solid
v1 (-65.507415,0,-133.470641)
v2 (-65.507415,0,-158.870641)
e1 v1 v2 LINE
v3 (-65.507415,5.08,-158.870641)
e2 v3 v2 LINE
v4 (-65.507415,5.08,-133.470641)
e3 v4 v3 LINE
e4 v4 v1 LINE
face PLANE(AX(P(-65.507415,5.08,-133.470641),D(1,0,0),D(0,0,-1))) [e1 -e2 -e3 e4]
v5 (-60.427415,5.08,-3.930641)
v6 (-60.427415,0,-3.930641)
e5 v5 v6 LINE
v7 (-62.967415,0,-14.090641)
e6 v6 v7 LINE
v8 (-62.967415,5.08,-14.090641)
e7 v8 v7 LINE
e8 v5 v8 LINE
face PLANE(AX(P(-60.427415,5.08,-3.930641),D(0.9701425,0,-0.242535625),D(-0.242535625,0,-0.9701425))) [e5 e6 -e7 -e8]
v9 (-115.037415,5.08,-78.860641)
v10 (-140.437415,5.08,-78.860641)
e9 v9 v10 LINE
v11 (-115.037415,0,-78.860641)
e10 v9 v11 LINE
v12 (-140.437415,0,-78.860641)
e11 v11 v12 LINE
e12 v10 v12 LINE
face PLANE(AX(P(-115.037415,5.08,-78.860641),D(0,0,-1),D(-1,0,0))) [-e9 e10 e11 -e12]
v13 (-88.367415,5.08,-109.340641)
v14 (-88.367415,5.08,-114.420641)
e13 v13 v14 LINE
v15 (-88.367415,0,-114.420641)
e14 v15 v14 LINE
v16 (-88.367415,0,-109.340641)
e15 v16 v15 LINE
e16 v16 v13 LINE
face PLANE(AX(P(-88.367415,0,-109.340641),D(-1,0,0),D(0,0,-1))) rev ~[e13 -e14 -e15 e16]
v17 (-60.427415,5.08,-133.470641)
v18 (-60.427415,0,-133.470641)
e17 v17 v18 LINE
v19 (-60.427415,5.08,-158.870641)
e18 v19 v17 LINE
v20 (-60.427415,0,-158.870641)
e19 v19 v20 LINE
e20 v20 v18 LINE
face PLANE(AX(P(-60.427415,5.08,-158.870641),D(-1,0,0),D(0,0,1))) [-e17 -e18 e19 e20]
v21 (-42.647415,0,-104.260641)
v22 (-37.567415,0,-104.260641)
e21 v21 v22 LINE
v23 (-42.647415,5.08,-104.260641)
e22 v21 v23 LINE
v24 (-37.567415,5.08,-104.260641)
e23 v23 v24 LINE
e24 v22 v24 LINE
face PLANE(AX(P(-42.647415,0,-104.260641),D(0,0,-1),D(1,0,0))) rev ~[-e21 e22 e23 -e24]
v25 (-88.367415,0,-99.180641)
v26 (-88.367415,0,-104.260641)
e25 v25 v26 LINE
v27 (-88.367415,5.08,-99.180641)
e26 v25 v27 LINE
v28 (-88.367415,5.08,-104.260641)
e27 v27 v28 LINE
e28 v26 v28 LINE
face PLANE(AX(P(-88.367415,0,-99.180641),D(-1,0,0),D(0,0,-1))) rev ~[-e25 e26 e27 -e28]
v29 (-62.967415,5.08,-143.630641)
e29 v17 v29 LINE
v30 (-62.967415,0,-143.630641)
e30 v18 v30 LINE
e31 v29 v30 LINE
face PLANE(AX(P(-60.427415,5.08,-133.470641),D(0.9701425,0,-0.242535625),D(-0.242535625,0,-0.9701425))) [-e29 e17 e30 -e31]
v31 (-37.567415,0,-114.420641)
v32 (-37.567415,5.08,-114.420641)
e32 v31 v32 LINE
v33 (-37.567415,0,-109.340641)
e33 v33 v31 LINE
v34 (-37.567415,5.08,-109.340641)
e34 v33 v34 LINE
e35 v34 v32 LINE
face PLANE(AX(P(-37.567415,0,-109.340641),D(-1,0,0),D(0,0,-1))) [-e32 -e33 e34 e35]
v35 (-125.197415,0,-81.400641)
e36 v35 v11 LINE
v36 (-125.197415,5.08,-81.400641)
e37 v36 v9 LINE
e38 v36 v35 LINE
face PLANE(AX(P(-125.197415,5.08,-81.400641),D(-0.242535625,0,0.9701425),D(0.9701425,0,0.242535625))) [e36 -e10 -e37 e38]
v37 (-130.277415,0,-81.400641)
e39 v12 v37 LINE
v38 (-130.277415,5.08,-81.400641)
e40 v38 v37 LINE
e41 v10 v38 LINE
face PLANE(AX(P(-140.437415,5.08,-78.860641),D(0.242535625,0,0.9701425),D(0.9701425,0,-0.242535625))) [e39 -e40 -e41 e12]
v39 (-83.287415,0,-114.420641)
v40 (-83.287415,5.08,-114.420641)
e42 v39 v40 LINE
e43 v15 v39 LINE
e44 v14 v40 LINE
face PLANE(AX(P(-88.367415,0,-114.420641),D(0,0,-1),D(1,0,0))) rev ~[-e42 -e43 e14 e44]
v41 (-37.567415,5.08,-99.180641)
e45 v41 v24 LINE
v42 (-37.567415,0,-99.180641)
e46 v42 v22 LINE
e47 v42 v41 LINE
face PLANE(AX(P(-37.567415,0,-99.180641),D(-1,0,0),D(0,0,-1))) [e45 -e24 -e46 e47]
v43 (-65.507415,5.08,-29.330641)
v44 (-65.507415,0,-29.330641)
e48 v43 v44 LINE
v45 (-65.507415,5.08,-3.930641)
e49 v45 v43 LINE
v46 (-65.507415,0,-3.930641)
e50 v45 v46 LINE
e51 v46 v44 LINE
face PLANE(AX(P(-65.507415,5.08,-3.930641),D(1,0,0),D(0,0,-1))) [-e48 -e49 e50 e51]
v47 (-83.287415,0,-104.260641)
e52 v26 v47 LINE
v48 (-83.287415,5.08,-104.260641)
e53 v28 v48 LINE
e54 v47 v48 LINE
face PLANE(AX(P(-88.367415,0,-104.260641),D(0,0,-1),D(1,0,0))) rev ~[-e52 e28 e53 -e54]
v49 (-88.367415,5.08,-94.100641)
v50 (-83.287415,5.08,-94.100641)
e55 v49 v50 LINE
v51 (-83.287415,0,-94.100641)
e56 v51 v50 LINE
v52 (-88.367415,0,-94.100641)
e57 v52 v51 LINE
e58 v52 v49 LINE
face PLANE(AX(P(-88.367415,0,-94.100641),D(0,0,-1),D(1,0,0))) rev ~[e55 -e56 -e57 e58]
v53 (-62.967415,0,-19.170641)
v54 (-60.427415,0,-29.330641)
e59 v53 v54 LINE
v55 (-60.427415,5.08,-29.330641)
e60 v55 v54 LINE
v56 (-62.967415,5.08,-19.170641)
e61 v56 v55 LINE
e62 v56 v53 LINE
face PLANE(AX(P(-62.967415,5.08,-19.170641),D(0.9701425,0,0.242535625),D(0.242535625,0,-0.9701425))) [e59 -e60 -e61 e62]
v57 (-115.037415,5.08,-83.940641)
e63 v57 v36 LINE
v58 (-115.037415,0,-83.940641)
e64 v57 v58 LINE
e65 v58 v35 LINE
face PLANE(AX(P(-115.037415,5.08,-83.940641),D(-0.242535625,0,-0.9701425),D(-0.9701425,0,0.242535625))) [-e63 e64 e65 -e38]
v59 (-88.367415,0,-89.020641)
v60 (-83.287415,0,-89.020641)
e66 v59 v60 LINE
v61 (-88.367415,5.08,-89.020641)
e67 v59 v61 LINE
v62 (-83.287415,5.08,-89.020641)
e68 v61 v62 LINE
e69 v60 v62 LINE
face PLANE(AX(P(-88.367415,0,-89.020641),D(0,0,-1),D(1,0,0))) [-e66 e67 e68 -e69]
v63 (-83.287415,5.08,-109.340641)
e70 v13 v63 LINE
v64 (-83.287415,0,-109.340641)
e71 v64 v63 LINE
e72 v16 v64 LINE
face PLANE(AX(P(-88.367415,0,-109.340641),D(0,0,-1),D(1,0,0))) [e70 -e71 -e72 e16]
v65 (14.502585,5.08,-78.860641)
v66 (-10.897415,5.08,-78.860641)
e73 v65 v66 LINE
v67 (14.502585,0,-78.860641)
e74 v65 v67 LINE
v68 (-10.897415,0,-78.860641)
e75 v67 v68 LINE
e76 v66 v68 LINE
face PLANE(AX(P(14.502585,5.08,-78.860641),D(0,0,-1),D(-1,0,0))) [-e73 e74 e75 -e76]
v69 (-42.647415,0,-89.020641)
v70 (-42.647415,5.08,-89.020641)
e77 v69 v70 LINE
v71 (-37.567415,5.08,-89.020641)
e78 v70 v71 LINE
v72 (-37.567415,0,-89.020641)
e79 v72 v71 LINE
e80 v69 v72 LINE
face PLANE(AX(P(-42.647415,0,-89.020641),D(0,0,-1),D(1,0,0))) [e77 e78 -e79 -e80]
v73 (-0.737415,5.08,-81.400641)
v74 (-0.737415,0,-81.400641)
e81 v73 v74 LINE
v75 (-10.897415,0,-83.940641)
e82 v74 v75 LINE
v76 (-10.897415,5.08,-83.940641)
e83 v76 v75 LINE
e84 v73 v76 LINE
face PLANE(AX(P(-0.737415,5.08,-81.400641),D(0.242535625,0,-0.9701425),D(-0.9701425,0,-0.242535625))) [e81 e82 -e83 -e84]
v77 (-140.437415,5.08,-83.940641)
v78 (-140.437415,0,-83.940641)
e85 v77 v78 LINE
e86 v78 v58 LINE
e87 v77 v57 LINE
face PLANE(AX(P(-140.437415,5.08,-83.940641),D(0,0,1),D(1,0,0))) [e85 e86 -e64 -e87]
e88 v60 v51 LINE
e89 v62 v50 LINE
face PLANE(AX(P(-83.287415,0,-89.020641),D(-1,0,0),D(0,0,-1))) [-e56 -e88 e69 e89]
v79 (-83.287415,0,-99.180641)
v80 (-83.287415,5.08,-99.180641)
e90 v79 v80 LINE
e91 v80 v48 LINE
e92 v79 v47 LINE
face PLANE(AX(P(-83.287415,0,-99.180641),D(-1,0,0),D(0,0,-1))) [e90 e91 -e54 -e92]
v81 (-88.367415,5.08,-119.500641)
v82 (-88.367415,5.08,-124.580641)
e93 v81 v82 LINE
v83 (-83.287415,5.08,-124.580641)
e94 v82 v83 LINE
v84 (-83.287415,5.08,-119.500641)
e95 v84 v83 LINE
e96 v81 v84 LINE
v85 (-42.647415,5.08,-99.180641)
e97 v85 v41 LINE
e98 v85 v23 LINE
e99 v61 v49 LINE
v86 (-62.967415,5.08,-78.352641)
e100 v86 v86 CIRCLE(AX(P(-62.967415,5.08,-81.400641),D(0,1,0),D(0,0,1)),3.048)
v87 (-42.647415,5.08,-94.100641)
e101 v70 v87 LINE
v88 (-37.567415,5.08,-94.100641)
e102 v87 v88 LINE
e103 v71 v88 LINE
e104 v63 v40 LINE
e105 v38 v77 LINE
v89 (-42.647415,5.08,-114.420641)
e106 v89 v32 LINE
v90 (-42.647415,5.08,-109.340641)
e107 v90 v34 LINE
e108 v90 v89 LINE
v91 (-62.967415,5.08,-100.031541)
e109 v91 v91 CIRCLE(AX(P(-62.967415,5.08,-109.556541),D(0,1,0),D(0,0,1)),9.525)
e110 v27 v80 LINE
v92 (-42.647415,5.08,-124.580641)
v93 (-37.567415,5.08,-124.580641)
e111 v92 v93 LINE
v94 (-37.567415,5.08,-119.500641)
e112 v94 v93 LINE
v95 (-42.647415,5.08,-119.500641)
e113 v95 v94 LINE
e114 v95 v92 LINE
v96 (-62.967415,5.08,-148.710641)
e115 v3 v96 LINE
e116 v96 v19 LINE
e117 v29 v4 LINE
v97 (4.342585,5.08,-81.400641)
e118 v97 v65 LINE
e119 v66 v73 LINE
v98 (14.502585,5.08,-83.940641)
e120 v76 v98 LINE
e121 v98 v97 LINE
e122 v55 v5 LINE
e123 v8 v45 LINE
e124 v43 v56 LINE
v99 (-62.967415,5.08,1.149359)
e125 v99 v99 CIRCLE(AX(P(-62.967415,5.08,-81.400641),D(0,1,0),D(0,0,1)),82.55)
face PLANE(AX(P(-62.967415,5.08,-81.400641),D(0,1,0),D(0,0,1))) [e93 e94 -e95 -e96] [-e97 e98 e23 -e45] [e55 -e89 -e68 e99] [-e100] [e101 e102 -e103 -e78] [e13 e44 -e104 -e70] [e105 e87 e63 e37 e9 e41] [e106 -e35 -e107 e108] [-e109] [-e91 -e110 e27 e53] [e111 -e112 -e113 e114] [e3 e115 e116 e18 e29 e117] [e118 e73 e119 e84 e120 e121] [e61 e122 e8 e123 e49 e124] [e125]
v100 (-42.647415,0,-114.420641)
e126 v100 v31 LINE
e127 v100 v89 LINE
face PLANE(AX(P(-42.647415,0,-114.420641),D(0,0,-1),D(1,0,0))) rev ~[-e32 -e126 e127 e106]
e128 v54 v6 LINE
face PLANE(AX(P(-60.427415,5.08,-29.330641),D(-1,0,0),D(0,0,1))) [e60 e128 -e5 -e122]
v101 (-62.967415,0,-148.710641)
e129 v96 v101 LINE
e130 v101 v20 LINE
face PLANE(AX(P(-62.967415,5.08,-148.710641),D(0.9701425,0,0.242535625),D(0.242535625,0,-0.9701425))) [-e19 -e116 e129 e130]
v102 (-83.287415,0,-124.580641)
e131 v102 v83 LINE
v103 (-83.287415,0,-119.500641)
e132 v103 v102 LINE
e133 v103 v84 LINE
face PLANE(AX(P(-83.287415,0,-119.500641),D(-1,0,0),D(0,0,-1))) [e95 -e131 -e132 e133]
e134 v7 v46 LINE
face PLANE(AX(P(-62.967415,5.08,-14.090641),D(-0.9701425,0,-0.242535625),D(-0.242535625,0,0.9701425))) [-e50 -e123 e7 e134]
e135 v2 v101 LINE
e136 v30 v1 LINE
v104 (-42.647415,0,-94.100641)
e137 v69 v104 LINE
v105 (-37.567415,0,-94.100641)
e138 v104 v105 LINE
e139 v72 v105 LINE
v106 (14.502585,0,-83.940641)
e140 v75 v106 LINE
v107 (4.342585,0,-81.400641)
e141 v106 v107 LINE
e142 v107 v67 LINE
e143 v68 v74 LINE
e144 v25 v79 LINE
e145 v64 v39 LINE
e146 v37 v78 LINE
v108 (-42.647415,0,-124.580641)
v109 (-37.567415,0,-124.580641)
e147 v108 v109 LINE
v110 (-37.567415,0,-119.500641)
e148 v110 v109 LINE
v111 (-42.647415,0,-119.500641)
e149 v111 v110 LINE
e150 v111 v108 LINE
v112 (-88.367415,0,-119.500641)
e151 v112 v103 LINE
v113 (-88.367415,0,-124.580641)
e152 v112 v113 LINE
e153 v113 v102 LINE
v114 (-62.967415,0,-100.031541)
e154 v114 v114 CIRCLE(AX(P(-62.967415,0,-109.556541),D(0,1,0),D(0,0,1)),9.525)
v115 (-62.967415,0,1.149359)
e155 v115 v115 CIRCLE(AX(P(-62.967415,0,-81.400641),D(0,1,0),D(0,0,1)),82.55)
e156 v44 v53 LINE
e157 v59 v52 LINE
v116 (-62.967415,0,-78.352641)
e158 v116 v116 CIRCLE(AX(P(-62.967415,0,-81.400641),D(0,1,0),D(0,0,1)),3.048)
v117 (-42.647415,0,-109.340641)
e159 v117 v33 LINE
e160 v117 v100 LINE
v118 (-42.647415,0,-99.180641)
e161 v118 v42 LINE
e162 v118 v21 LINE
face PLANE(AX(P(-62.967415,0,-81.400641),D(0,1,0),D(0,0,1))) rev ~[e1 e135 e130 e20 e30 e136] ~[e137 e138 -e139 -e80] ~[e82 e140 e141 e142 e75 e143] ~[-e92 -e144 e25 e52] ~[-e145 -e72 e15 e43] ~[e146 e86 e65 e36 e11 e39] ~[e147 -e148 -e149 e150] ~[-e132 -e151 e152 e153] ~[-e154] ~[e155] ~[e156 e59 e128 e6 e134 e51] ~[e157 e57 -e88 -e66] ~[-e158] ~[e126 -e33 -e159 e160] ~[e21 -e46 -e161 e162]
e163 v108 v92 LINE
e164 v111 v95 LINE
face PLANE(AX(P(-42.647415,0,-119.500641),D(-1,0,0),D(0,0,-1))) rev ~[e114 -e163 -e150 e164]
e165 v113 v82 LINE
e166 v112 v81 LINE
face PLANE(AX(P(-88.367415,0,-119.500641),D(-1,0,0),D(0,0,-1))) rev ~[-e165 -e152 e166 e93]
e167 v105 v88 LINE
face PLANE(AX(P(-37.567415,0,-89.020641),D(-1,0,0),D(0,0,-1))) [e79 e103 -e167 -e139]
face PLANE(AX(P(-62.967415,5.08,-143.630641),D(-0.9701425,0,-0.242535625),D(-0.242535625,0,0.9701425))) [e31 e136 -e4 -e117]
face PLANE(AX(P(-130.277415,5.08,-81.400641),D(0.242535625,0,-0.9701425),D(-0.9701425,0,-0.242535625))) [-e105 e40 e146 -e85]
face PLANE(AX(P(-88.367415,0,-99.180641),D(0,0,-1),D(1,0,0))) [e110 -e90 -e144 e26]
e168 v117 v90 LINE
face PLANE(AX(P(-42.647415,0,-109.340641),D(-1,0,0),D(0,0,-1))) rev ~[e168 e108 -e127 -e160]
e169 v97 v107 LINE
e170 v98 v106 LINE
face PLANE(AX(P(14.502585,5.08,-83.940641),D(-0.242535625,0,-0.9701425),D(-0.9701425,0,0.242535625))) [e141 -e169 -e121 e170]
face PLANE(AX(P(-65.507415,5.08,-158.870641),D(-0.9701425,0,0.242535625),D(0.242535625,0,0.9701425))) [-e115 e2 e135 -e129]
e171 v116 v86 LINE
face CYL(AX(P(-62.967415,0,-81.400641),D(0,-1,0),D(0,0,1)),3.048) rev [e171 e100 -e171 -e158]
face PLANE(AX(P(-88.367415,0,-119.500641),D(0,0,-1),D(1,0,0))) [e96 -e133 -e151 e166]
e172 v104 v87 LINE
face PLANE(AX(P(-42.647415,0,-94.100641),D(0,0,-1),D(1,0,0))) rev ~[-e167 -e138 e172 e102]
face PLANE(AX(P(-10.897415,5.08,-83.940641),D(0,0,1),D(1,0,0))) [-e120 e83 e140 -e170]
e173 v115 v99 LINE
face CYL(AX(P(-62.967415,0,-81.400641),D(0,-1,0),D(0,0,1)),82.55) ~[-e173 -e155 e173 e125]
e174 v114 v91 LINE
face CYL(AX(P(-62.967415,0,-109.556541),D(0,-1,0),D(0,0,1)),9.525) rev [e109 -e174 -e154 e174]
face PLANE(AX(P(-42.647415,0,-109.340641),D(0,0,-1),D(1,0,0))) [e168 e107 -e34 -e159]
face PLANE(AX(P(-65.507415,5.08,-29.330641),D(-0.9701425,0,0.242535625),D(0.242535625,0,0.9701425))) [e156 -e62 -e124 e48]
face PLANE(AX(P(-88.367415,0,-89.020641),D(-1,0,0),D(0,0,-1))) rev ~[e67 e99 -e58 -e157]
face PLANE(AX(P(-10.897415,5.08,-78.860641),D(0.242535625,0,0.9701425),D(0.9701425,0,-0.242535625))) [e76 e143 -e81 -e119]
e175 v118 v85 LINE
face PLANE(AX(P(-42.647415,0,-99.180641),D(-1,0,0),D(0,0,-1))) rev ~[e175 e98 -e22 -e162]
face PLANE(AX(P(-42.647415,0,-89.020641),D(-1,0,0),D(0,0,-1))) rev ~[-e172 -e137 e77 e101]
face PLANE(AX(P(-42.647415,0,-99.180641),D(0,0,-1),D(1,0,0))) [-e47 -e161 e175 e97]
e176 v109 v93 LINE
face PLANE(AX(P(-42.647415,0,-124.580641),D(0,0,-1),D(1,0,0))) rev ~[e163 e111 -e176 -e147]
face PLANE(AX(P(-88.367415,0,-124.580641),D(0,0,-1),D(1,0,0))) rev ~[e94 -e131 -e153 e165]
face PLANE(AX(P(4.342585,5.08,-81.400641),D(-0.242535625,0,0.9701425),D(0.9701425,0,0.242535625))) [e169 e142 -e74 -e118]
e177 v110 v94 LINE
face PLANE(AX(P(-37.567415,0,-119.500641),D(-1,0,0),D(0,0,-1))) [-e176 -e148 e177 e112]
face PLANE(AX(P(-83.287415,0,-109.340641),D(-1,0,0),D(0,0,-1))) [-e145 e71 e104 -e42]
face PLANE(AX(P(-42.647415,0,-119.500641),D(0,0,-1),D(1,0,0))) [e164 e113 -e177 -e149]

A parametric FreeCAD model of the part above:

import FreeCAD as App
import Part
import Sketcher

V = App.Vector
Q = App.Units.Quantity


def add_polygon(sketch, points):
    """Adds a closed chain of lines whose ends are joined by coincident constraints."""
    first, n = sketch.GeometryCount, len(points)
    for a, b in zip(points, points[1:] + points[:1]):
        sketch.addGeometry(Part.LineSegment(App.Vector(*a, 0), App.Vector(*b, 0)), False)
    for i in range(n):
        sketch.addConstraint(Sketcher.Constraint("Coincident", first + i, 2, first + (i + 1) % n, 1))

doc = App.newDocument("Part")
body = doc.addObject("PartDesign::Body", "Body")

sketch1 = body.newObject("Sketcher::SketchObject", "Sketch")
sketch1.AttachmentSupport = (doc.getObject("XZ_Plane"), [""])
sketch1.MapMode = "FlatFace"
sketch1.addGeometry(Part.Circle(V(-62.967415, -81.400641, 0), V(0, 0, 1), 82.55), False)
add_polygon(sketch1, [(-83.287415, -119.500641), (-88.367415, -119.500641), (-88.367415, -124.580641), (-83.287415, -124.580641)])
add_polygon(sketch1, [(-83.287415, -109.340641), (-88.367415, -109.340641), (-88.367415, -114.420641), (-83.287415, -114.420641)])
add_polygon(sketch1, [(-83.287415, -99.180641), (-88.367415, -99.180641), (-88.367415, -104.260641), (-83.287415, -104.260641)])
add_polygon(sketch1, [(-83.287415, -89.020641), (-88.367415, -89.020641), (-88.367415, -94.100641), (-83.287415, -94.100641)])
sketch1.addGeometry(Part.Circle(V(-62.967415, -109.556541, 0), V(0, 0, 1), 9.525), False)
add_polygon(sketch1, [(-37.567415, -119.500641), (-42.647415, -119.500641), (-42.647415, -124.580641), (-37.567415, -124.580641)])
add_polygon(sketch1, [(-37.567415, -109.340641), (-42.647415, -109.340641), (-42.647415, -114.420641), (-37.567415, -114.420641)])
add_polygon(sketch1, [(-37.567415, -99.180641), (-42.647415, -99.180641), (-42.647415, -104.260641), (-37.567415, -104.260641)])
sketch1.addGeometry(Part.Circle(V(-62.967415, -81.400641, 0), V(0, 0, 1), 3.048), False)
add_polygon(sketch1, [(-37.567415, -89.020641), (-42.647415, -89.020641), (-42.647415, -94.100641), (-37.567415, -94.100641)])
sketch1.addConstraint([
    Sketcher.Constraint("Horizontal", 1),
    Sketcher.Constraint("Vertical", 2),
    Sketcher.Constraint("Horizontal", 3),
    Sketcher.Constraint("Vertical", 4),
    Sketcher.Constraint("Horizontal", 5),
    Sketcher.Constraint("Vertical", 6),
    Sketcher.Constraint("Horizontal", 7),
    Sketcher.Constraint("Vertical", 8),
    Sketcher.Constraint("Horizontal", 9),
    Sketcher.Constraint("Vertical", 10),
    Sketcher.Constraint("Horizontal", 11),
    Sketcher.Constraint("Vertical", 12),
    Sketcher.Constraint("Horizontal", 13),
    Sketcher.Constraint("Vertical", 14),
    Sketcher.Constraint("Horizontal", 15),
    Sketcher.Constraint("Vertical", 16),
    Sketcher.Constraint("Horizontal", 18),
    Sketcher.Constraint("Vertical", 19),
    Sketcher.Constraint("Horizontal", 20),
    Sketcher.Constraint("Vertical", 21),
    Sketcher.Constraint("Horizontal", 22),
    Sketcher.Constraint("Vertical", 23),
    Sketcher.Constraint("Horizontal", 24),
    Sketcher.Constraint("Vertical", 25),
    Sketcher.Constraint("Horizontal", 26),
    Sketcher.Constraint("Vertical", 27),
    Sketcher.Constraint("Horizontal", 28),
    Sketcher.Constraint("Vertical", 29),
    Sketcher.Constraint("Horizontal", 31),
    Sketcher.Constraint("Vertical", 32),
    Sketcher.Constraint("Horizontal", 33),
    Sketcher.Constraint("Vertical", 34),
    Sketcher.Constraint("Coincident", 30, 3, 0, 3),
    Sketcher.Constraint("Horizontal", 4, 2, 18, 2),
    Sketcher.Constraint("Horizontal", 3, 2, 19, 2),
    Sketcher.Constraint("Horizontal", 8, 2, 22, 2),
    Sketcher.Constraint("Horizontal", 7, 2, 23, 2),
    Sketcher.Constraint("Horizontal", 12, 2, 26, 2),
    Sketcher.Constraint("Horizontal", 11, 2, 27, 2),
    Sketcher.Constraint("Horizontal", 16, 2, 31, 2),
    Sketcher.Constraint("Horizontal", 15, 2, 32, 2),
    Sketcher.Constraint("Vertical", 0, 3, 17, 3),
    Sketcher.Constraint("Vertical", 2, 2, 5, 2),
    Sketcher.Constraint("Vertical", 4, 2, 7, 2),
    Sketcher.Constraint("Vertical", 6, 2, 9, 2),
    Sketcher.Constraint("Vertical", 8, 2, 11, 2),
    Sketcher.Constraint("Vertical", 10, 2, 13, 2),
    Sketcher.Constraint("Vertical", 12, 2, 15, 2),
    Sketcher.Constraint("Vertical", 19, 2, 22, 2),
    Sketcher.Constraint("Vertical", 21, 2, 24, 2),
    Sketcher.Constraint("Vertical", 23, 2, 26, 2),
    Sketcher.Constraint("Vertical", 25, 2, 28, 2),
    Sketcher.Constraint("Vertical", 27, 2, 31, 2),
    Sketcher.Constraint("Vertical", 29, 2, 33, 2),
    Sketcher.Constraint("Equal", 15, 18),
    Sketcher.Constraint("Equal", 33, 2),
    Sketcher.Constraint("Equal", 4, 6),
    Sketcher.Constraint("Equal", 8, 10),
    Sketcher.Constraint("Equal", 12, 14),
    Sketcher.Constraint("Diameter", 0, Q("6.5 in")),
    Sketcher.Constraint("Diameter", 17, Q("0.75 in")),
    Sketcher.Constraint("Diameter", 30, Q("0.24 in")),
    Sketcher.Constraint("DistanceX", 1, 2, 1, 1, Q("0.2 in")),
    Sketcher.Constraint("DistanceX", 1, 2, 17, 3, Q("1 in")),
    Sketcher.Constraint("DistanceX", 17, 3, 20, 2, Q("1 in")),
    Sketcher.Constraint("DistanceY", 1, 2, 0, 3, Q("1.5 in")),
    Sketcher.Constraint("DistanceY", 1, 2, 5, 2, Q("0.4 in")),
    Sketcher.Constraint("DistanceY", 5, 2, 9, 2, Q("0.4 in")),
    Sketcher.Constraint("DistanceY", 9, 2, 13, 2, Q("0.4 in")),
    Sketcher.Constraint("DistanceY", 17, 3, 0, 3, Q("1.1085 in")),
    Sketcher.Constraint("DistanceY", 0, 3, -1, 1, 81.400641),
    Sketcher.Constraint("DistanceX", 0, 3, -1, 1, 62.967415),
])
pad1 = body.newObject("PartDesign::Pad", "Pad")
pad1.Profile = sketch1
pad1.Length = Q("0.2 in")
pad1.Reversed = True

sketch2 = body.newObject("Sketcher::SketchObject", "Sketch001")
sketch2.AttachmentSupport = (doc.getObject("XZ_Plane"), [""])
sketch2.MapMode = "FlatFace"
sketch2.AttachmentOffset = App.Placement(V(0, 0, -0.2 * 25.4), App.Rotation())
add_polygon(sketch2, [(-60.427415, -158.870641), (-62.967415, -148.710641), (-65.507415, -158.870641), (-65.507415, -133.470641), (-62.967415, -143.630641), (-60.427415, -133.470641)])
add_polygon(sketch2, [(14.502585, -78.860641), (4.342585, -81.400641), (14.502585, -83.940641), (-10.897415, -83.940641), (-0.737415, -81.400641), (-10.897415, -78.860641)])
add_polygon(sketch2, [(-65.507415, -3.930641), (-62.967415, -14.090641), (-60.427415, -3.930641), (-60.427415, -29.330641), (-62.967415, -19.170641), (-65.507415, -29.330641)])
add_polygon(sketch2, [(-140.437415, -83.940641), (-130.277415, -81.400641), (-140.437415, -78.860641), (-115.037415, -78.860641), (-125.197415, -81.400641), (-115.037415, -83.940641)])
sketch2.addConstraint([
    Sketcher.Constraint("Vertical", 2),
    Sketcher.Constraint("Vertical", 5),
    Sketcher.Constraint("Horizontal", 8),
    Sketcher.Constraint("Horizontal", 11),
    Sketcher.Constraint("Vertical", 14),
    Sketcher.Constraint("Vertical", 17),
    Sketcher.Constraint("Horizontal", 20),
    Sketcher.Constraint("Horizontal", 23),
    Sketcher.Constraint("Parallel", 0, 3),
    Sketcher.Constraint("Parallel", 1, 4),
    Sketcher.Constraint("Perpendicular", 3, 6),
    Sketcher.Constraint("Perpendicular", 4, 7),
    Sketcher.Constraint("Parallel", 6, 9),
    Sketcher.Constraint("Parallel", 7, 10),
    Sketcher.Constraint("Perpendicular", 9, 12),
    Sketcher.Constraint("Perpendicular", 10, 13),
    Sketcher.Constraint("Parallel", 12, 15),
    Sketcher.Constraint("Parallel", 13, 16),
    Sketcher.Constraint("Perpendicular", 15, 18),
    Sketcher.Constraint("Perpendicular", 16, 19),
    Sketcher.Constraint("Parallel", 18, 21),
    Sketcher.Constraint("Parallel", 19, 22),
    Sketcher.Constraint("Horizontal", 2, 2, 4, 2),
    Sketcher.Constraint("Horizontal", 1, 2, 5, 2),
    Sketcher.Constraint("Horizontal", 6, 2, 9, 2),
    Sketcher.Constraint("Horizontal", 14, 2, 16, 2),
    Sketcher.Constraint("Horizontal", 13, 2, 17, 2),
    Sketcher.Constraint("Horizontal", 9, 2, 18, 2),
    Sketcher.Constraint("Horizontal", 11, 2, 19, 2),
    Sketcher.Constraint("Horizontal", 18, 2, 21, 2),
    Sketcher.Constraint("Horizontal", 8, 2, 22, 2),
    Sketcher.Constraint("Vertical", 0, 2, 3, 2),
    Sketcher.Constraint("Vertical", 8, 2, 10, 2),
    Sketcher.Constraint("Vertical", 3, 2, 12, 2),
    Sketcher.Constraint("Vertical", 5, 2, 13, 2),
    Sketcher.Constraint("Equal", 11, 20),
    Sketcher.Constraint("Equal", 23, 2),
    Sketcher.Constraint("Equal", 5, 14),
    Sketcher.Constraint("Equal", 4, 6),
    Sketcher.Constraint("DistanceX", 8, 2, 8, 1, Q("1 in")),
    Sketcher.Constraint("DistanceX", 1, 2, 0, 2, Q("0.1 in")),
    Sketcher.Constraint("DistanceY", 1, 2, 0, 2, Q("0.4 in")),
    Sketcher.Constraint("DistanceX", 4, 2, 6, 2, Q("2.55 in")),
    Sketcher.Constraint("DistanceY", 4, 2, 6, 2, Q("2.05 in")),
    Sketcher.Constraint("DistanceY", 10, 2, 12, 2, Q("2.55 in")),
    Sketcher.Constraint("DistanceX", 18, 2, 2, 2, Q("2.55 in")),
    Sketcher.Constraint("DistanceY", 0, 2, -1, 1, 148.710641),
    Sketcher.Constraint("DistanceX", 0, 2, -1, 1, 62.967415),
])
pocket1 = body.newObject("PartDesign::Pocket", "Pocket")
pocket1.Profile = sketch2
pocket1.Length = Q("0.2 in")
pocket1.Reversed = True

doc.recompute()
